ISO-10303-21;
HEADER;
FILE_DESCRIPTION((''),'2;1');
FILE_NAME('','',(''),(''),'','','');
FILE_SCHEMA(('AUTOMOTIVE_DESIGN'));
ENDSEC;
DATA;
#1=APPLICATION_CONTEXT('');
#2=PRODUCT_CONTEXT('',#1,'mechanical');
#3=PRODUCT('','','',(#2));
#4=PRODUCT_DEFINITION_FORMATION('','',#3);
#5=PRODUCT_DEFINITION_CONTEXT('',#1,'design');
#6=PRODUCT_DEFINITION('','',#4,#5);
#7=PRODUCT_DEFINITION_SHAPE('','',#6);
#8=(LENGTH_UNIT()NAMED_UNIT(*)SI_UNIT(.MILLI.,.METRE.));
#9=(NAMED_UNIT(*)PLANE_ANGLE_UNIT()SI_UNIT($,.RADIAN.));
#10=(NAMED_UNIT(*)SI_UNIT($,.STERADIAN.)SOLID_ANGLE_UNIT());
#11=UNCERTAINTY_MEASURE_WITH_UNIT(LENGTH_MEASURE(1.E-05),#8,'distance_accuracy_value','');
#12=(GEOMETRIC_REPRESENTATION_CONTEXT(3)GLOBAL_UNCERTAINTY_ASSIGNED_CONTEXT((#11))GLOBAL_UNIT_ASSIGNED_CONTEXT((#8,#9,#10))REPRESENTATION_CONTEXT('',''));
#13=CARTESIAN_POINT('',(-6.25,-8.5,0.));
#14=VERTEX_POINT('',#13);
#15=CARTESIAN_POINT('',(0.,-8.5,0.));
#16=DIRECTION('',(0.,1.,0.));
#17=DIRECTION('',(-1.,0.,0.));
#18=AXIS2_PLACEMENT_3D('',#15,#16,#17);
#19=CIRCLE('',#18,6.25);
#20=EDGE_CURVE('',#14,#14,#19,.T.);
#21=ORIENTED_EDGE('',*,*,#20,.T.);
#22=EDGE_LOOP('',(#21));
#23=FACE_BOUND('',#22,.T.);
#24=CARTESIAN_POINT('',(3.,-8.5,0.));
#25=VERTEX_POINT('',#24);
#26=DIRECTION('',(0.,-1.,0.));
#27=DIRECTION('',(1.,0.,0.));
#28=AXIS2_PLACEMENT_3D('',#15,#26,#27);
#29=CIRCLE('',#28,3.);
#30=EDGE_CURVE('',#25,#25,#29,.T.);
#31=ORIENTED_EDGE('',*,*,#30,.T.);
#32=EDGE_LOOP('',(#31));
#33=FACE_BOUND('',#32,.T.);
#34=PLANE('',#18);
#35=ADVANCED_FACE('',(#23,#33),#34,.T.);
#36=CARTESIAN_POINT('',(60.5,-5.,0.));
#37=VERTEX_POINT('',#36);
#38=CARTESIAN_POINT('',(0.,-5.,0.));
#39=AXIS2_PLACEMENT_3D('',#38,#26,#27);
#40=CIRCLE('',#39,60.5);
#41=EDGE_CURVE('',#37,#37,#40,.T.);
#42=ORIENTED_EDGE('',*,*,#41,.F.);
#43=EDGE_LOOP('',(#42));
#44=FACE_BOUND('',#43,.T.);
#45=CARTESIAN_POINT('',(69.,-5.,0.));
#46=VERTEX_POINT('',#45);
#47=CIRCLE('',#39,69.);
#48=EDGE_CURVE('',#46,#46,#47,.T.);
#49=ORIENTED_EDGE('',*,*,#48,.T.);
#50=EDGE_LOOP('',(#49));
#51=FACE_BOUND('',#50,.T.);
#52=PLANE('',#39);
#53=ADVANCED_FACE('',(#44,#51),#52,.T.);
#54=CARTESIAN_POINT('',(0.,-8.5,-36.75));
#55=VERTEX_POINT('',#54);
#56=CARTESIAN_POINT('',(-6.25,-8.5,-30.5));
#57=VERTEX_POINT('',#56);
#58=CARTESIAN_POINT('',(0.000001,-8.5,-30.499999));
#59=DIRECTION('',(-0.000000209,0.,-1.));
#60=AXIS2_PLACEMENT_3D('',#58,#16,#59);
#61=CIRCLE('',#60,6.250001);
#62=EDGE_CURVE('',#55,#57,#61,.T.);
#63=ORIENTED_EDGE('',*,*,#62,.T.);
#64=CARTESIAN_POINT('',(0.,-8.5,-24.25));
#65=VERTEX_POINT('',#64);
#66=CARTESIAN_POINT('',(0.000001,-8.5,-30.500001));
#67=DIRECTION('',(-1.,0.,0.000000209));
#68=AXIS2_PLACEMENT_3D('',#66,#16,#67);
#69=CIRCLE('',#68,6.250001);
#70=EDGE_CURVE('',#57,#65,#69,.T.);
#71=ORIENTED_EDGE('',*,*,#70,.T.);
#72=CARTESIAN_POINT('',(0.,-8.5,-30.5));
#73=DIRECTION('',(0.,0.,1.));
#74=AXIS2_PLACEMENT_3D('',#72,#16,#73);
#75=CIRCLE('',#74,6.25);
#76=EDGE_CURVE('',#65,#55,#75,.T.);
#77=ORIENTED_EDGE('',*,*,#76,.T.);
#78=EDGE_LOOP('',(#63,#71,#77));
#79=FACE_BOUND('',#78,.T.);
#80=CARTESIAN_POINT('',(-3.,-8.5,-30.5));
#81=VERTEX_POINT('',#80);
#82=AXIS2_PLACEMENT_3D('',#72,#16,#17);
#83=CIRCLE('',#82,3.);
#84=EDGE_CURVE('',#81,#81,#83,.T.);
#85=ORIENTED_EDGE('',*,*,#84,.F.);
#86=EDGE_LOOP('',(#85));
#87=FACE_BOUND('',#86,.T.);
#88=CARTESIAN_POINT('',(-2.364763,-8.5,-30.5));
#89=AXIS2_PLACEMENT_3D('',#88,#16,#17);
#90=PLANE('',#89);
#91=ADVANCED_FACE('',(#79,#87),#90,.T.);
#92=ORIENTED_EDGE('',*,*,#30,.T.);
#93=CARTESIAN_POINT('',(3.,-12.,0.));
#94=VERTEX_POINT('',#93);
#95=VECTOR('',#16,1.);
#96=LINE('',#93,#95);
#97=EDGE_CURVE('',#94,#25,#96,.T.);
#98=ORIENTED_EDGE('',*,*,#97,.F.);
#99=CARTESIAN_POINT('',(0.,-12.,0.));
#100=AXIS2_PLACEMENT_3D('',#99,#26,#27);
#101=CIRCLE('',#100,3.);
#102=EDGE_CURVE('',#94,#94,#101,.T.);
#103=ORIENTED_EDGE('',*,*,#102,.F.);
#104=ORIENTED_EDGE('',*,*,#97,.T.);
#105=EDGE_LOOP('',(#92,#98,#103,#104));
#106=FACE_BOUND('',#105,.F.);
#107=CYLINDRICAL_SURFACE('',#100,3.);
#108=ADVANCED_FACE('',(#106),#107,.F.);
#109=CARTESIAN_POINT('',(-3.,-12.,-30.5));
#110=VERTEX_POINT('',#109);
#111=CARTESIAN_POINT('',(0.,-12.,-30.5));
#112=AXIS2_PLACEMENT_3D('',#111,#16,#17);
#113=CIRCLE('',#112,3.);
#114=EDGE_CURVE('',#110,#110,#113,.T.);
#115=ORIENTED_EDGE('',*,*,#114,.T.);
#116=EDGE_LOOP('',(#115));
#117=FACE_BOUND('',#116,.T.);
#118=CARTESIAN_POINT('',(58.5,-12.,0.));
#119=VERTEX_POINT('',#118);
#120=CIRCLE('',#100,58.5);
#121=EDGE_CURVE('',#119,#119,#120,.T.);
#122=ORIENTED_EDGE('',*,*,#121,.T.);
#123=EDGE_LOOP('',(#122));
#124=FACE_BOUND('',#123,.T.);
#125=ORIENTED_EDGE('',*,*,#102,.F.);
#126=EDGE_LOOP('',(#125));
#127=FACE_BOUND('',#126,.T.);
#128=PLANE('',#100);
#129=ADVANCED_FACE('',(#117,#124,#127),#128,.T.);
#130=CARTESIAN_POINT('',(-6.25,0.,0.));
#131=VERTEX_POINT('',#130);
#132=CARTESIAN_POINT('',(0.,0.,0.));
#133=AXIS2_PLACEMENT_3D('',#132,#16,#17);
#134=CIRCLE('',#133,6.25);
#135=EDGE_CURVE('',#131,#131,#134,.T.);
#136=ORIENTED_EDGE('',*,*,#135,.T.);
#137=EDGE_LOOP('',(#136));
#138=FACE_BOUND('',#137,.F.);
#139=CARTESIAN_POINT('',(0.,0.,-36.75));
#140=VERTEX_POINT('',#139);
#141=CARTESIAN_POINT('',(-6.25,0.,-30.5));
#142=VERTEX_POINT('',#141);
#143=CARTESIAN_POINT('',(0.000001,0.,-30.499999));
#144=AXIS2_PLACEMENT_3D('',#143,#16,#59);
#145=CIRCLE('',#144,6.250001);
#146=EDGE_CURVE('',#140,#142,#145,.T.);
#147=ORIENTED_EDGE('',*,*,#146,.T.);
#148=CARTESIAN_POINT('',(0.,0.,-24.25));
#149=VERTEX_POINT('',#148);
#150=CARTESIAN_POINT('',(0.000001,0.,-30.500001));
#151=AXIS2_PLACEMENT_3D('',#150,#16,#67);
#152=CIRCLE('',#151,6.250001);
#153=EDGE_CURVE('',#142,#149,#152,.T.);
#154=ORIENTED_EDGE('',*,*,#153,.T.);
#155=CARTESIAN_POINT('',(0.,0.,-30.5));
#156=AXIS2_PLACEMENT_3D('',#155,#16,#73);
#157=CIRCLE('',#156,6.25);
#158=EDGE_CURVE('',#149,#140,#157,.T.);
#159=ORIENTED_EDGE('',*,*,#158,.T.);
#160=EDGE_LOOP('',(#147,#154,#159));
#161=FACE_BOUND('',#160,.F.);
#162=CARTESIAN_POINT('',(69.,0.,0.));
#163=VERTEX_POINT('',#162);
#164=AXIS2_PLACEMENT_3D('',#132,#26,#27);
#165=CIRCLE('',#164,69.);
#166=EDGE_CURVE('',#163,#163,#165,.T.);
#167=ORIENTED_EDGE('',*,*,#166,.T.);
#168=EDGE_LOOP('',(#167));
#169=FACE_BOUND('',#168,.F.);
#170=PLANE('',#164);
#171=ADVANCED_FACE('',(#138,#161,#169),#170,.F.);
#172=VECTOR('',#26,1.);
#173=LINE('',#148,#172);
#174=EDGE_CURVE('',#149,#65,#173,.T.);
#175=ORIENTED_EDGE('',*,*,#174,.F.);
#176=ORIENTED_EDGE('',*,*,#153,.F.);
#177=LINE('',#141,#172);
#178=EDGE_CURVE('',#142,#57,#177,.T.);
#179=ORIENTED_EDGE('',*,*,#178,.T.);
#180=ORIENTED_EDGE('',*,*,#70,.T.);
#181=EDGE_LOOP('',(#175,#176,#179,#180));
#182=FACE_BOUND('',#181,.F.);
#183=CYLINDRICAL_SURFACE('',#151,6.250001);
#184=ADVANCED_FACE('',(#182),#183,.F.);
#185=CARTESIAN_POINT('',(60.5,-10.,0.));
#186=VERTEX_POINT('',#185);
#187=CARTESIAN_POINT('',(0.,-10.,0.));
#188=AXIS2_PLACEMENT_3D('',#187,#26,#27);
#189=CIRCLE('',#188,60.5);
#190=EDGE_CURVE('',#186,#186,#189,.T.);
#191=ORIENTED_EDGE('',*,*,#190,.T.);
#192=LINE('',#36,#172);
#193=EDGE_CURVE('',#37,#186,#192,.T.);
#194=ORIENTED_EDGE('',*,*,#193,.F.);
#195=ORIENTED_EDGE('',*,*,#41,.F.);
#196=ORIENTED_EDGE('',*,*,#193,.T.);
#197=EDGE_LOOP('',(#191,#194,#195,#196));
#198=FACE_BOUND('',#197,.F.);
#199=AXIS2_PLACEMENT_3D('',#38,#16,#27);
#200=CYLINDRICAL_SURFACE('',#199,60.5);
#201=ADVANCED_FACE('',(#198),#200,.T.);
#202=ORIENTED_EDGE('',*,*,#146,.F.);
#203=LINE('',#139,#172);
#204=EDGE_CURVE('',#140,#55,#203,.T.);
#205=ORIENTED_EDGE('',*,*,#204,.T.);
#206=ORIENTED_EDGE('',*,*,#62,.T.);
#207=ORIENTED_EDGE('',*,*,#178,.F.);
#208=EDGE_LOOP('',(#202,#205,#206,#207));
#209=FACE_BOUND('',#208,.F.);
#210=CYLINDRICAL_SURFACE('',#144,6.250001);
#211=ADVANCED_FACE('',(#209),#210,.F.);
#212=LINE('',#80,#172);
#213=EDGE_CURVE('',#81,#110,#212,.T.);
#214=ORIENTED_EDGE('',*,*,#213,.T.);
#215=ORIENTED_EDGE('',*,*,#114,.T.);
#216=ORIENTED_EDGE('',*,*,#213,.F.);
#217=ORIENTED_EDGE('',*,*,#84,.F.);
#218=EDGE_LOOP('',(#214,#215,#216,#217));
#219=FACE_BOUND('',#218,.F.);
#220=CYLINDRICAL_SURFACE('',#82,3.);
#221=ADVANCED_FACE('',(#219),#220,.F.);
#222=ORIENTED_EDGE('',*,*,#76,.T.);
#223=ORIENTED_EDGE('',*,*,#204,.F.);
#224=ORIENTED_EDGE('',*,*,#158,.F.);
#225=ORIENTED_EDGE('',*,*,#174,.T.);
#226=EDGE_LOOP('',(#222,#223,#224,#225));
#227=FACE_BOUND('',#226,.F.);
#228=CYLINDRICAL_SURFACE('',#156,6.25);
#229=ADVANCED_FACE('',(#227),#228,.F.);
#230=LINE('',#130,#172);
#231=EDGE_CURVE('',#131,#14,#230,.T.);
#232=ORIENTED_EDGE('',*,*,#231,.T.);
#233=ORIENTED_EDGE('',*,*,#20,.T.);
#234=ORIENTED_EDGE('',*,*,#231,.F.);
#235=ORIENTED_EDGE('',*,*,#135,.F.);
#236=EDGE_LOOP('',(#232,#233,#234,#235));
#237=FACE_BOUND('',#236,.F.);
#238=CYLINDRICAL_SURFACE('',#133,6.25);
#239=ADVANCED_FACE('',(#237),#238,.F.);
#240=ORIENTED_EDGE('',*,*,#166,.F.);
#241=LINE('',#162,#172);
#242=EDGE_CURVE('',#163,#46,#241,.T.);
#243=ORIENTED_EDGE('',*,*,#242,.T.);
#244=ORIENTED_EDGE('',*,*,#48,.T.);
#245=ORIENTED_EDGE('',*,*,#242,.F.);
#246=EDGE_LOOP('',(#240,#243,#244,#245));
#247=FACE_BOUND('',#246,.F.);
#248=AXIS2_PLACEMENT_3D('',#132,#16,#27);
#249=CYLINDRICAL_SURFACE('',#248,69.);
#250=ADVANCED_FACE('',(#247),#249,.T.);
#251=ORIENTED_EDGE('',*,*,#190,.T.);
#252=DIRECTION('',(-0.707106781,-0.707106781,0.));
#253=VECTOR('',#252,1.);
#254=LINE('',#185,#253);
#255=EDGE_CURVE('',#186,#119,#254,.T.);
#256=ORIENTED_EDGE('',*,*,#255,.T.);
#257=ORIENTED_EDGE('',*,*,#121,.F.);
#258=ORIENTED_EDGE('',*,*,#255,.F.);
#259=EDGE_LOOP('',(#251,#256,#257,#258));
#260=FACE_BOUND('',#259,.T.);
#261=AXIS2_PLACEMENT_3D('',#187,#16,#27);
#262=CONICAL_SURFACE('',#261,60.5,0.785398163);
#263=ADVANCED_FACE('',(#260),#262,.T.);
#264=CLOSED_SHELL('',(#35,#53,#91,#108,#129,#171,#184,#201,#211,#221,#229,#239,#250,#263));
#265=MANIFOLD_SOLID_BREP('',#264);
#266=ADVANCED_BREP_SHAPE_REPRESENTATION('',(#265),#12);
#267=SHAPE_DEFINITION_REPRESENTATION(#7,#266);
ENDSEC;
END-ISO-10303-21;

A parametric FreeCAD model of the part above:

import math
import FreeCAD as App
import Part
import Sketcher
Q = App.Units.Quantity


def edges_at(feature, points):
    """Names of the edges that pass closest to the given points."""
    edges = feature.Shape.Edges
    near = lambda p: min(range(len(edges)), key=lambda i: edges[i].distToShape(Part.Vertex(*p))[0])
    return sorted({f"Edge{near(p) + 1}" for p in points})

doc = App.newDocument("Part")
body = doc.addObject("PartDesign::Body", "Body")

sketch1 = body.newObject("Sketcher::SketchObject", "Sketch")
sketch1.AttachmentSupport = (doc.getObject("XZ_Plane"), [""])
sketch1.MapMode = "FlatFace"
sketch1.addGeometry(Part.Circle(App.Vector(0, 0, 0), App.Vector(0, 0, 1), 69), False)
sketch1.addConstraint([
    Sketcher.Constraint("Coincident", 0, 3, -1, 1),
    Sketcher.Constraint("Diameter", 0, Q("138 mm")),
])
pad1 = body.newObject("PartDesign::Pad", "Pad")
pad1.Profile = sketch1
pad1.Length = 5

sketch2 = body.newObject("Sketcher::SketchObject", "Sketch001")
sketch2.AttachmentSupport = (doc.getObject("XZ_Plane"), [""])
sketch2.MapMode = "FlatFace"
sketch2.AttachmentOffset = App.Placement(App.Vector(0, 0, 5), App.Rotation())
sketch2.addGeometry(Part.Circle(App.Vector(0, 0, 0), App.Vector(0, 0, 1), 60.5), False)
sketch2.addConstraint([
    Sketcher.Constraint("Coincident", 0, 3, -1, 1),
    Sketcher.Constraint("Diameter", 0, Q("121 mm")),
])
pad2 = body.newObject("PartDesign::Pad", "Pad001")
pad2.Profile = sketch2
pad2.Length = 7

sketch3 = body.newObject("Sketcher::SketchObject", "Sketch002")
sketch3.AttachmentSupport = (doc.getObject("XZ_Plane"), [""])
sketch3.MapMode = "FlatFace"
sketch3.addGeometry(Part.Circle(App.Vector(0, 0, 0), App.Vector(0, 0, 1), 6.25), False)
sketch3.addConstraint([
    Sketcher.Constraint("Coincident", 0, 3, -1, 1),
    Sketcher.Constraint("Diameter", 0, Q("12.5 mm")),
])
pocket1 = body.newObject("PartDesign::Pocket", "Pocket")
pocket1.Profile = sketch3
pocket1.Length = 8.5
pocket1.Reversed = True

sketch4 = body.newObject("Sketcher::SketchObject", "Sketch003")
sketch4.AttachmentSupport = (doc.getObject("XZ_Plane"), [""])
sketch4.MapMode = "FlatFace"
sketch4.AttachmentOffset = App.Placement(App.Vector(0, 0, 12), App.Rotation())
sketch4.addGeometry(Part.Circle(App.Vector(0, 0, 0), App.Vector(0, 0, 1), 3), False)
sketch4.addConstraint([
    Sketcher.Constraint("Coincident", 0, 3, -1, 1),
    Sketcher.Constraint("Diameter", 0, Q("6 mm")),
])
pocket2 = body.newObject("PartDesign::Pocket", "Pocket001")
pocket2.Profile = sketch4
pocket2.Length = 25

sketch5 = body.newObject("Sketcher::SketchObject", "Sketch004")
sketch5.AttachmentSupport = (doc.getObject("XZ_Plane"), [""])
sketch5.MapMode = "FlatFace"
sketch5.addGeometry([
    Part.ArcOfCircle(Part.Circle(App.Vector(0.000001, -30.500001, 0), App.Vector(0, 0, 1), 6.250001), math.radians(90.000012), math.radians(179.999988)),
    Part.ArcOfCircle(Part.Circle(App.Vector(0, -30.5, 0), App.Vector(0, 0, 1), 6.25), math.radians(-90), math.radians(90)),
    Part.ArcOfCircle(Part.Circle(App.Vector(0.000001, -30.499999, 0), App.Vector(0, 0, 1), 6.250001), math.radians(-179.999988), math.radians(-90.000012)),
], False)
sketch5.addConstraint([
    Sketcher.Constraint("Tangent", 0, 1, 1, 2),
    Sketcher.Constraint("Tangent", 1, 1, 2, 2),
    Sketcher.Constraint("Tangent", 2, 1, 0, 2),
    Sketcher.Constraint("PointOnObject", 0, 3, -2),
    Sketcher.Constraint("PointOnObject", 0, 1, -2),
    Sketcher.Constraint("PointOnObject", 1, 1, -2),
    Sketcher.Constraint("Horizontal", 1, 3, 2, 1),
    Sketcher.Constraint("Radius", 0, Q("6.250001 mm")),
    Sketcher.Constraint("DistanceY", 0, 3, -1, 1, Q("30.500001 mm")),
])
pocket3 = body.newObject("PartDesign::Pocket", "Pocket002")
pocket3.Profile = sketch5
pocket3.Length = 8.5
pocket3.Reversed = True

sketch6 = body.newObject("Sketcher::SketchObject", "Sketch005")
sketch6.AttachmentSupport = (doc.getObject("XZ_Plane"), [""])
sketch6.MapMode = "FlatFace"
sketch6.AttachmentOffset = App.Placement(App.Vector(0, 0, 8.5), App.Rotation())
sketch6.addGeometry(Part.Circle(App.Vector(0, -30.5, 0), App.Vector(0, 0, 1), 3), False)
sketch6.addConstraint([
    Sketcher.Constraint("PointOnObject", 0, 3, -2),
    Sketcher.Constraint("Diameter", 0, Q("6 mm")),
    Sketcher.Constraint("DistanceY", 0, 3, -1, 1, Q("30.5 mm")),
])
pocket4 = body.newObject("PartDesign::Pocket", "Pocket003")
pocket4.Profile = sketch6
pocket4.Length = 25
pocket4.Reversed = True
doc.recompute()

chamfer = body.newObject("PartDesign::Chamfer", "Chamfer")
chamfer.Base = (pocket4, edges_at(pocket4, [(-60.5, -12, 0)]))
chamfer.Size = 2

doc.recompute()
